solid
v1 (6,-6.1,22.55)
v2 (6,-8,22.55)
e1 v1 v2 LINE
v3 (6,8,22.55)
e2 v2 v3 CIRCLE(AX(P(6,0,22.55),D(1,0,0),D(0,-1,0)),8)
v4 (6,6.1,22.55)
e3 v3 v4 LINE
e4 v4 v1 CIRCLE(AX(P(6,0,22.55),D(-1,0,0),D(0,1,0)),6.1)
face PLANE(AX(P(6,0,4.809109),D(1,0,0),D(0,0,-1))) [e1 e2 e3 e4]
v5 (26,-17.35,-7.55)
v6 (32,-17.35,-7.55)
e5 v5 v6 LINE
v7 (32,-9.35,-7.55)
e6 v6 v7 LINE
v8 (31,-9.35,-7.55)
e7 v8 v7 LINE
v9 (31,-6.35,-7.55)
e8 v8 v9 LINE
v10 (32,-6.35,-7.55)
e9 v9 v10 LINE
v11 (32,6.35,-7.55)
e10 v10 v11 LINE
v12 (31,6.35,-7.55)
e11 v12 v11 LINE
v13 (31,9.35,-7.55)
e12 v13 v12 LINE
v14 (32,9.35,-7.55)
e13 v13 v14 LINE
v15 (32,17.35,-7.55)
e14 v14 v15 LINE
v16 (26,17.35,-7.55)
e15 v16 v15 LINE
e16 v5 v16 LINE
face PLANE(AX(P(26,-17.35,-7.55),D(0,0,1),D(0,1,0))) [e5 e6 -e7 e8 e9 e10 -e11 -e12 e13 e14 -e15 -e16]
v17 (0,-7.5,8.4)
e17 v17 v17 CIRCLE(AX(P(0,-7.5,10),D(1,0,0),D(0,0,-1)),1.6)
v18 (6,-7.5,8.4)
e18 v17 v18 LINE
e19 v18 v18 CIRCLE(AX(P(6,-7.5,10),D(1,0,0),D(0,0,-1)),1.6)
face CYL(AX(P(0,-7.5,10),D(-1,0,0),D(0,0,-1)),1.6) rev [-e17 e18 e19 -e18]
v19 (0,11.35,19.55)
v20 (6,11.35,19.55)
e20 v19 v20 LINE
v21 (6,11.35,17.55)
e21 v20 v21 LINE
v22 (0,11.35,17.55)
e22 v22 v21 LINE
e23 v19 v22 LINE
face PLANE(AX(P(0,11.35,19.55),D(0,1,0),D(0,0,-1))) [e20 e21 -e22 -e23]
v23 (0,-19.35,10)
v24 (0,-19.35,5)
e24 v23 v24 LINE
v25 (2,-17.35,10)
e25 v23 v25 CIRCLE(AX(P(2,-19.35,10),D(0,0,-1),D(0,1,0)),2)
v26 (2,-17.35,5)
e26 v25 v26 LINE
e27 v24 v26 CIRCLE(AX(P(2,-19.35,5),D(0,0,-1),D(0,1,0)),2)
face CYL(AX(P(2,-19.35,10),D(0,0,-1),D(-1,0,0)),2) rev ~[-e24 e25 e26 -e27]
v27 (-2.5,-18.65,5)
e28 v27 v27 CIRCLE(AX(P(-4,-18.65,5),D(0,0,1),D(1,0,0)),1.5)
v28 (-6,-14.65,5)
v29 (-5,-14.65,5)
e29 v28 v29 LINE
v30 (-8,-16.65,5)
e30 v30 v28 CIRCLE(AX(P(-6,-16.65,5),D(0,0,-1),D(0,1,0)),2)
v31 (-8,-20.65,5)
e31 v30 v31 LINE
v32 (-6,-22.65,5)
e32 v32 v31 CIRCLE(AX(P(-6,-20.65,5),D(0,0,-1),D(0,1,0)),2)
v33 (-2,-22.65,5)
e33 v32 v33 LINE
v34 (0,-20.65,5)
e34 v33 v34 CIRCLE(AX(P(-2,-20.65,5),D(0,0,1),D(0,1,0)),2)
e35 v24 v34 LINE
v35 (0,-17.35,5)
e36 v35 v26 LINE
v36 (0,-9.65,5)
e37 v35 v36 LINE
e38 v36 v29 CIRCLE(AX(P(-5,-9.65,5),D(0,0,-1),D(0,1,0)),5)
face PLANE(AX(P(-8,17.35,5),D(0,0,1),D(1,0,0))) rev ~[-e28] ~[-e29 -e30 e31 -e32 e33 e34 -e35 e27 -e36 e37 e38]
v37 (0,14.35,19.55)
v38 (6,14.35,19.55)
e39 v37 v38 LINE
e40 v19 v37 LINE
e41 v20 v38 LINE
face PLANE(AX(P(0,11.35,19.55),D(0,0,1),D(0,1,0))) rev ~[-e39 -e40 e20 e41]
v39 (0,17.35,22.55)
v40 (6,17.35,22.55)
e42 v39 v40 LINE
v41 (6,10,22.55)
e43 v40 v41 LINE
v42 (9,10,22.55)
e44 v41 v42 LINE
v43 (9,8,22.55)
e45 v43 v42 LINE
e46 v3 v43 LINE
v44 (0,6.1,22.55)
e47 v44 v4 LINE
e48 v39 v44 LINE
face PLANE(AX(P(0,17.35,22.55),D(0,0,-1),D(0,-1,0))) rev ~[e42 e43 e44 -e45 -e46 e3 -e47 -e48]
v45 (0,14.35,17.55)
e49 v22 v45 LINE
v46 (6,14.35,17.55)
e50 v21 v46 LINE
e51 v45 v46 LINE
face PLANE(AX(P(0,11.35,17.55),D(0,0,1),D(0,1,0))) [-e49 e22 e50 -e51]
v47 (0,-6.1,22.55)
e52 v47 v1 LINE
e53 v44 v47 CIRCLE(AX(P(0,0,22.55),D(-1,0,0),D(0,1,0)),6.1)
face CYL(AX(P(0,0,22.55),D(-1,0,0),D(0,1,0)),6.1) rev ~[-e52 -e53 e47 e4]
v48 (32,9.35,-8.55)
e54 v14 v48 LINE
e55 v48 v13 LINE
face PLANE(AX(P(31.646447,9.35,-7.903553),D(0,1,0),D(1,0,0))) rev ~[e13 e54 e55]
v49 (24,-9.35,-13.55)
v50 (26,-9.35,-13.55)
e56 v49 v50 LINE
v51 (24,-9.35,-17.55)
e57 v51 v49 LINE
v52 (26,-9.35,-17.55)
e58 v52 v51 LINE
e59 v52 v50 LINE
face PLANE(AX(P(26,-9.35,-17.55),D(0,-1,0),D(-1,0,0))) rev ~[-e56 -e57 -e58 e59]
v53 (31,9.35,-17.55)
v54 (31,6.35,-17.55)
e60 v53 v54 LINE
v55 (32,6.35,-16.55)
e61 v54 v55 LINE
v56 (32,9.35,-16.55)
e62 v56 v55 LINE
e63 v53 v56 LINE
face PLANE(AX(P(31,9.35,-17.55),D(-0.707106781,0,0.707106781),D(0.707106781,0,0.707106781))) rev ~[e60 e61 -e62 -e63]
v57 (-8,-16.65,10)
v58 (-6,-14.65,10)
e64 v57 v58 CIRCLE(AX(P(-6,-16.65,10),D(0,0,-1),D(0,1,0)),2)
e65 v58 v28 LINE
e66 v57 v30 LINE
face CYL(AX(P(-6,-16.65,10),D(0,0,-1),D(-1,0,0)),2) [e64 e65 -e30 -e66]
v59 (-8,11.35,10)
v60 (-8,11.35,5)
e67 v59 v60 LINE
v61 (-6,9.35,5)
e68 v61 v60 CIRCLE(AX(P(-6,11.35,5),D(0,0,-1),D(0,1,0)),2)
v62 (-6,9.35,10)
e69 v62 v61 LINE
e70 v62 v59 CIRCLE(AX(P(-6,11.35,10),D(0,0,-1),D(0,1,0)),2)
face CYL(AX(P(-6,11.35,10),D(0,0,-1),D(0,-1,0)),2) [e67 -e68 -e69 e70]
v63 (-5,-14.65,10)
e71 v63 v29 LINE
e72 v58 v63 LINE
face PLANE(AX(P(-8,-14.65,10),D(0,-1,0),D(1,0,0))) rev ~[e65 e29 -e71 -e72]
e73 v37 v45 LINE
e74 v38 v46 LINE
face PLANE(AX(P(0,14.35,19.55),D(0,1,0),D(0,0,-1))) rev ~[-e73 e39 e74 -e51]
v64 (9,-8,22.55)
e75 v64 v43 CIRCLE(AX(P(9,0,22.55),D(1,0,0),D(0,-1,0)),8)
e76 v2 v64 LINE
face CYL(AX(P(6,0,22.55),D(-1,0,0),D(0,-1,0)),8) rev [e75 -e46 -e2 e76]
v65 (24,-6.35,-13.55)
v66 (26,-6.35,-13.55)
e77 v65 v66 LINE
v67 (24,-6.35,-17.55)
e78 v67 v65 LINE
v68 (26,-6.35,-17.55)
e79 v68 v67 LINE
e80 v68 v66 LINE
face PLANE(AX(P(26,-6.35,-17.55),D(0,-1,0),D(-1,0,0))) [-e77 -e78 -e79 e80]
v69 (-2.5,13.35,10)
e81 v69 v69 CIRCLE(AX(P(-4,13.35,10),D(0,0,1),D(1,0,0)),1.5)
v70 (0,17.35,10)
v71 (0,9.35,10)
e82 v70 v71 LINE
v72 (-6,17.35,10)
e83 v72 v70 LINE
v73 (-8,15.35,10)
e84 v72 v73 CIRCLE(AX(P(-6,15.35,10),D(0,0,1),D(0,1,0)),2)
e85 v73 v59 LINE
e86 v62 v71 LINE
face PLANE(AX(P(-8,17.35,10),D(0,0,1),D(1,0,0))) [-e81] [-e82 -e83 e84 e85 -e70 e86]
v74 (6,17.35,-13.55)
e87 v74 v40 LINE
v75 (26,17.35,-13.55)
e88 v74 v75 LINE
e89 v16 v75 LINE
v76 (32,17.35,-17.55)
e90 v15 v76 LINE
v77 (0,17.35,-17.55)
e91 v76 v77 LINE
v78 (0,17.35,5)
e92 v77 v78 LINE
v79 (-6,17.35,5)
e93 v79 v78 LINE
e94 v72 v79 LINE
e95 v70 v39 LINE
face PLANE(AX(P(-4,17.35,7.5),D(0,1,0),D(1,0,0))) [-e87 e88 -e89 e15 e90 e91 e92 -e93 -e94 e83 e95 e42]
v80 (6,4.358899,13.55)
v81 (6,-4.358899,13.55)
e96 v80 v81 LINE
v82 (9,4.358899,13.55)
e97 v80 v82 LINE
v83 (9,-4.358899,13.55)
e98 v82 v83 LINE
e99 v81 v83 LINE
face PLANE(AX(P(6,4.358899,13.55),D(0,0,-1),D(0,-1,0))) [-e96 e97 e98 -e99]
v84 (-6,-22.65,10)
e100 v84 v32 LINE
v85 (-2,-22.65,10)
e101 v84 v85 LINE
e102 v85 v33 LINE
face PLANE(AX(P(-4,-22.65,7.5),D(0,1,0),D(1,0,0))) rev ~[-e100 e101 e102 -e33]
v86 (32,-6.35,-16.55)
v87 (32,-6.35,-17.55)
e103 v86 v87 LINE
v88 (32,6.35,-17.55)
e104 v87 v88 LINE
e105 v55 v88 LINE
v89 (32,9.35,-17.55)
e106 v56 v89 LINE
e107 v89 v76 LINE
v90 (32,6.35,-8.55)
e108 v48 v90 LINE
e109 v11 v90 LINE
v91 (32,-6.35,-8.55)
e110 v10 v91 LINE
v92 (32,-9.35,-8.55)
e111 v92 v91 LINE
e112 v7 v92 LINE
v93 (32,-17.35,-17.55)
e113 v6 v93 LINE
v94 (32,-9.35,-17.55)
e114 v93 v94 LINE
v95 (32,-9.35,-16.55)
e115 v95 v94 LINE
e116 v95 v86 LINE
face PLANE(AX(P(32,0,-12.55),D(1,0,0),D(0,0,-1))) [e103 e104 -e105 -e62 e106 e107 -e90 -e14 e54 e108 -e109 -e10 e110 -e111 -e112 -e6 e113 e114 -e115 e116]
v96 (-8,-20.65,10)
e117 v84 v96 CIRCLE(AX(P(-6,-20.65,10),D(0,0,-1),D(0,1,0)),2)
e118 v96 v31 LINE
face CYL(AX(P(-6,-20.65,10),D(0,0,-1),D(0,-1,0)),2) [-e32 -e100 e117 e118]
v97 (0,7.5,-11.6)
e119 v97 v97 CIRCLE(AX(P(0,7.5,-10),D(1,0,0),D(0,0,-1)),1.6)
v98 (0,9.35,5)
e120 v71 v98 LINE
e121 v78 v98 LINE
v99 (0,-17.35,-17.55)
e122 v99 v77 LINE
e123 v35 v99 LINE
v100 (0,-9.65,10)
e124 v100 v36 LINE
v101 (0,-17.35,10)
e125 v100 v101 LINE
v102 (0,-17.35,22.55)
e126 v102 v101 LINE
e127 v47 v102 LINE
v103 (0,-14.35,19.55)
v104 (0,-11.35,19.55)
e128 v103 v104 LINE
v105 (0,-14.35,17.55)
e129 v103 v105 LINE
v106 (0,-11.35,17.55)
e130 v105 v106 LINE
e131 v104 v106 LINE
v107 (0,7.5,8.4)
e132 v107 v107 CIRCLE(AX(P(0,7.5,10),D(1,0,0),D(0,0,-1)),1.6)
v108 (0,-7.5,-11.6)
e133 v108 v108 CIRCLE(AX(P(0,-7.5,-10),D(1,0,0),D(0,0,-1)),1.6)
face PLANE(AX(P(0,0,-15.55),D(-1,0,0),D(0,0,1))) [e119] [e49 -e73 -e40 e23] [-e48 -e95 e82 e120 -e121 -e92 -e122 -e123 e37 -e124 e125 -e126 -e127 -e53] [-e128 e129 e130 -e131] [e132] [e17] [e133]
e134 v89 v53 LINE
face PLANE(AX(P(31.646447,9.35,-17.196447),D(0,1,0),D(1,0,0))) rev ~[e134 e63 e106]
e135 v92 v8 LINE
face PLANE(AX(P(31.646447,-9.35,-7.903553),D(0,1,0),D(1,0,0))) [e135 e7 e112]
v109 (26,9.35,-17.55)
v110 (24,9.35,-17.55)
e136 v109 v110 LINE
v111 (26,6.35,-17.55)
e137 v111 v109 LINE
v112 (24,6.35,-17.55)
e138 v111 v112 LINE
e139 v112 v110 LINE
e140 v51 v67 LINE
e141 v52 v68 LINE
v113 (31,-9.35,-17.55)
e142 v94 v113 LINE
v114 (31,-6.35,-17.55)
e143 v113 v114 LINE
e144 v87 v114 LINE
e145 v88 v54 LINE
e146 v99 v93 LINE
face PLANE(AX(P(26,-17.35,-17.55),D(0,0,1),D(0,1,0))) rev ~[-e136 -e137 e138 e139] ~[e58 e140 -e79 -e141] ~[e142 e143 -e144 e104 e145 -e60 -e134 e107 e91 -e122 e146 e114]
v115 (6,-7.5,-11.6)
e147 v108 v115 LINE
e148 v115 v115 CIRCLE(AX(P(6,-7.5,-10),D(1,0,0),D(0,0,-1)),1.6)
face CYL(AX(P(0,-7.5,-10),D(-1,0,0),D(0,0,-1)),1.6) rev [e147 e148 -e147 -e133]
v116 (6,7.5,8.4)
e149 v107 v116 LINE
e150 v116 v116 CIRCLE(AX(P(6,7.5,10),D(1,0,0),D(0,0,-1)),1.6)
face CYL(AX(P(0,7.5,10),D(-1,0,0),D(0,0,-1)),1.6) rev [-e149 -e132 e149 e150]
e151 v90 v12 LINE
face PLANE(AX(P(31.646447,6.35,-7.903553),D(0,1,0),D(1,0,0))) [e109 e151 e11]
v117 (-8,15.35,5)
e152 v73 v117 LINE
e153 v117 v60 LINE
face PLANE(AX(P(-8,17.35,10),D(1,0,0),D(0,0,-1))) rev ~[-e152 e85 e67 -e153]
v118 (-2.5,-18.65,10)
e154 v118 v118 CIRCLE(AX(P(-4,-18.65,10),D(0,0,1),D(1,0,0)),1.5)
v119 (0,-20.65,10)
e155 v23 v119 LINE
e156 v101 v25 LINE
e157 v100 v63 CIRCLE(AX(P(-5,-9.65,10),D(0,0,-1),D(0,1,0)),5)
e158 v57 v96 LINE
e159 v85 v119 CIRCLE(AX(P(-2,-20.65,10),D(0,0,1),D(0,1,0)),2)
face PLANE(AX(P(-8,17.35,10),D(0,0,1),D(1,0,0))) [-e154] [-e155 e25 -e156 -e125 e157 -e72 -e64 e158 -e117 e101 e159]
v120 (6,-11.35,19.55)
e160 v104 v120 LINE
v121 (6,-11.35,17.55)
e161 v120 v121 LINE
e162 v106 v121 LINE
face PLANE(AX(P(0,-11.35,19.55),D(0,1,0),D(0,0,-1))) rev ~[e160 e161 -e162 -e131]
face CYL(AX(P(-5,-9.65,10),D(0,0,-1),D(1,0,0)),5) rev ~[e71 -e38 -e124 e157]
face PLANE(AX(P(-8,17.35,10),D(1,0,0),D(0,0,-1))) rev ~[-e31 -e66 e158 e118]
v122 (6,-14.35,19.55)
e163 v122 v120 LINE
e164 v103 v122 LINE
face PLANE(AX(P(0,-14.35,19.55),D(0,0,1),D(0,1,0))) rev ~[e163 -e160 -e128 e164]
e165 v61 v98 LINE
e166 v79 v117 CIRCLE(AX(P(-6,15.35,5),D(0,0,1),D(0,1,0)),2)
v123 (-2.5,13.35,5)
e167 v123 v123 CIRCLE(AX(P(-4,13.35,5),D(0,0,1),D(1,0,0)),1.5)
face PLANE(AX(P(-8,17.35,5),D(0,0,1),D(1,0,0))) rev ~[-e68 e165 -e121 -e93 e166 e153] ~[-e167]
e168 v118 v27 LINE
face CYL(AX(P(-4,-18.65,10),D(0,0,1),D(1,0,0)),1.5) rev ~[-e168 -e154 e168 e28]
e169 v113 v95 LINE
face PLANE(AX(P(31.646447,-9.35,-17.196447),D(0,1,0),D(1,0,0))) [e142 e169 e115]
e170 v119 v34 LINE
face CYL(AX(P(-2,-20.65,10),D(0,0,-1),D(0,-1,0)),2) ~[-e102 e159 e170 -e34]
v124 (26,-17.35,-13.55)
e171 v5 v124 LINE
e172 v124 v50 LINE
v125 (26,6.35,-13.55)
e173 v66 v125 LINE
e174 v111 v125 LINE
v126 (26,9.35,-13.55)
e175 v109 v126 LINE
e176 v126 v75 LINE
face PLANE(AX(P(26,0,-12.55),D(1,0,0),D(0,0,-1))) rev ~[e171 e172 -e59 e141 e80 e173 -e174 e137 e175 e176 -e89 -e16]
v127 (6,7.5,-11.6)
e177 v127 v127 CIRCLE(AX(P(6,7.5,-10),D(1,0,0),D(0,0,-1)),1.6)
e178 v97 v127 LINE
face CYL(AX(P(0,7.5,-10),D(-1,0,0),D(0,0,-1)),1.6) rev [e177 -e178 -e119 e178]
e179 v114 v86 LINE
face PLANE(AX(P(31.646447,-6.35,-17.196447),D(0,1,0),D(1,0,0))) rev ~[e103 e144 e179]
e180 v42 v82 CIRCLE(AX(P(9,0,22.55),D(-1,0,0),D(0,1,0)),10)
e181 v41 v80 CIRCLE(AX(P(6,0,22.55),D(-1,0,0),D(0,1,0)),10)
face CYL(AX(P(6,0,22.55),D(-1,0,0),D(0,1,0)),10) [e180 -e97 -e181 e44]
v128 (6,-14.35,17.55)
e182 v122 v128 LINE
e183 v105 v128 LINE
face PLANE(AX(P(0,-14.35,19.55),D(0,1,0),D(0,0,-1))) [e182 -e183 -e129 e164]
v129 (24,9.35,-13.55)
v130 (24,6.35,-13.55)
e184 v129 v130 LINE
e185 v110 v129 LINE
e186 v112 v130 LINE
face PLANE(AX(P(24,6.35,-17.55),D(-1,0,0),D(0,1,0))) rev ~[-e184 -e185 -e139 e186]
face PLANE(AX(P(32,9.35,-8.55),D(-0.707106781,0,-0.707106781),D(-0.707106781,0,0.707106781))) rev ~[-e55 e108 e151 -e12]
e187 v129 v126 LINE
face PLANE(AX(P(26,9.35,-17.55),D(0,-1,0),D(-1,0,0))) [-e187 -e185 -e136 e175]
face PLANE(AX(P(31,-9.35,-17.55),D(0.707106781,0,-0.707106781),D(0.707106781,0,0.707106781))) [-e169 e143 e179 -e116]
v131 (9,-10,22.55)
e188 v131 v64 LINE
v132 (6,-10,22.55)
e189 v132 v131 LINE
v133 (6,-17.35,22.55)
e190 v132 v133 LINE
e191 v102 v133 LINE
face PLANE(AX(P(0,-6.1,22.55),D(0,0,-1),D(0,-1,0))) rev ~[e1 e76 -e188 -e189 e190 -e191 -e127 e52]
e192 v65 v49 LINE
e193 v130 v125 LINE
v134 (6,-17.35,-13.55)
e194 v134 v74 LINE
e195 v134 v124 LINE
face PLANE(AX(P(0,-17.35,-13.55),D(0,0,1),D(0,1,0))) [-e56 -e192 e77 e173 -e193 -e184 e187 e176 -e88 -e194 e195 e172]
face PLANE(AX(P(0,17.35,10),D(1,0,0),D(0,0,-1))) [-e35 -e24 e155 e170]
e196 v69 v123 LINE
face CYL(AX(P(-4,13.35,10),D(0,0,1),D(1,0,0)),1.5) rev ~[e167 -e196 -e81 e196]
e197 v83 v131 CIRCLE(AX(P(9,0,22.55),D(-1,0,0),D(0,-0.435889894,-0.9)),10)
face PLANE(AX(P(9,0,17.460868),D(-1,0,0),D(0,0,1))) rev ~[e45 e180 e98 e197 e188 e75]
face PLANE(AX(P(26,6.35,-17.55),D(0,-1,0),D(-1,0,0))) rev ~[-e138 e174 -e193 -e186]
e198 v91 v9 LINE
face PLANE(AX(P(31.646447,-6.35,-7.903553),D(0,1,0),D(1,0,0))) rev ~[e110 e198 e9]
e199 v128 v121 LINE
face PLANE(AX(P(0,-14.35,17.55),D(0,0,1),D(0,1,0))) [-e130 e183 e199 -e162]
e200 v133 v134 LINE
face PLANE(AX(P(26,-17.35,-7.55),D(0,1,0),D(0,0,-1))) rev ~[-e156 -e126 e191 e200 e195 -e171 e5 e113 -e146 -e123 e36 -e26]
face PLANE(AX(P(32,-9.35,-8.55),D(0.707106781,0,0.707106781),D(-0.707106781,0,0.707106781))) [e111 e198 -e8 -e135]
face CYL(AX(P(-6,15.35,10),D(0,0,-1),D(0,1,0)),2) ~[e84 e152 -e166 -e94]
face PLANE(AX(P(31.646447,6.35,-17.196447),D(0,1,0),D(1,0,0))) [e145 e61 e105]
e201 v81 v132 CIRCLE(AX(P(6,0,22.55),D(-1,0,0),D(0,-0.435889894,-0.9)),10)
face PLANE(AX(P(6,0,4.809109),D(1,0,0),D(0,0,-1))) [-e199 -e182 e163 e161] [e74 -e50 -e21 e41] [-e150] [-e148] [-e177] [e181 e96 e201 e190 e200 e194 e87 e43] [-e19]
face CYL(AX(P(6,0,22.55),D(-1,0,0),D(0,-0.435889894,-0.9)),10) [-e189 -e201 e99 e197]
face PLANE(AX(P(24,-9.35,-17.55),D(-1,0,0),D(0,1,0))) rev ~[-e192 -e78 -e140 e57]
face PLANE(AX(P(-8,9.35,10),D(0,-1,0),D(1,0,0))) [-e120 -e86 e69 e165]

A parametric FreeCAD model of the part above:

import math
import FreeCAD as App
import Part
import Sketcher


def edges_at(feature, points):
    """Names of the edges that pass closest to the given points."""
    edges = feature.Shape.Edges
    near = lambda p: min(range(len(edges)), key=lambda i: edges[i].distToShape(Part.Vertex(*p))[0])
    return sorted({f"Edge{near(p) + 1}" for p in points})

doc = App.newDocument("Part")
body = doc.addObject("PartDesign::Body", "Body")

# Sketch on YZ plane
sketch1 = body.newObject("Sketcher::SketchObject", "Sketch")
sketch1.AttachmentSupport = (doc.getObject("YZ_Plane"), [""])
sketch1.MapMode = "FlatFace"
sketch1.addGeometry(Part.LineSegment(App.Vector(17.35, -13.55, 0), App.Vector(17.35, 22.55, 0)), False)
sketch1.addGeometry(Part.LineSegment(App.Vector(17.35, 22.55, 0), App.Vector(6.1, 22.55, 0)), False)
sketch1.addGeometry(Part.ArcOfCircle(Part.Circle(App.Vector(0, 22.55, 0), App.Vector(0, 0, 1), 6.1), math.radians(180), math.radians(360)), False)
sketch1.addGeometry(Part.LineSegment(App.Vector(-6.1, 22.55, 0), App.Vector(-17.35, 22.55, 0)), False)
sketch1.addGeometry(Part.LineSegment(App.Vector(-17.35, 22.55, 0), App.Vector(-17.35, -13.55, 0)), False)
sketch1.addGeometry(Part.LineSegment(App.Vector(-17.35, -13.55, 0), App.Vector(17.35, -13.55, 0)), False)
sketch1.addGeometry(Part.LineSegment(App.Vector(-14.35, 17.55, 0), App.Vector(-14.35, 19.55, 0)), False)
sketch1.addGeometry(Part.LineSegment(App.Vector(-14.35, 19.55, 0), App.Vector(-11.35, 19.55, 0)), False)
sketch1.addGeometry(Part.LineSegment(App.Vector(-11.35, 19.55, 0), App.Vector(-11.35, 17.55, 0)), False)
sketch1.addGeometry(Part.LineSegment(App.Vector(-11.35, 17.55, 0), App.Vector(-14.35, 17.55, 0)), False)
sketch1.addGeometry(Part.Circle(App.Vector(-7.5, 10, 0), App.Vector(0, 0, 1), 1.6), False)
sketch1.addGeometry(Part.Circle(App.Vector(-7.5, -10, 0), App.Vector(0, 0, 1), 1.6), False)
sketch1.addGeometry(Part.LineSegment(App.Vector(11.35, 17.55, 0), App.Vector(11.35, 19.55, 0)), False)
sketch1.addGeometry(Part.LineSegment(App.Vector(11.35, 19.55, 0), App.Vector(14.35, 19.55, 0)), False)
sketch1.addGeometry(Part.LineSegment(App.Vector(14.35, 19.55, 0), App.Vector(14.35, 17.55, 0)), False)
sketch1.addGeometry(Part.LineSegment(App.Vector(14.35, 17.55, 0), App.Vector(11.35, 17.55, 0)), False)
sketch1.addGeometry(Part.Circle(App.Vector(7.5, 10, 0), App.Vector(0, 0, 1), 1.6), False)
sketch1.addGeometry(Part.Circle(App.Vector(7.5, -10, 0), App.Vector(0, 0, 1), 1.6), False)
sketch1.addConstraint(Sketcher.Constraint("Coincident", 0, 2, 1, 1))
sketch1.addConstraint(Sketcher.Constraint("Coincident", 1, 2, 2, 2))
sketch1.addConstraint(Sketcher.Constraint("Coincident", 2, 1, 3, 1))
sketch1.addConstraint(Sketcher.Constraint("Coincident", 3, 2, 4, 1))
sketch1.addConstraint(Sketcher.Constraint("Coincident", 4, 2, 5, 1))
sketch1.addConstraint(Sketcher.Constraint("Coincident", 5, 2, 0, 1))
sketch1.addConstraint(Sketcher.Constraint("Coincident", 6, 2, 7, 1))
sketch1.addConstraint(Sketcher.Constraint("Coincident", 7, 2, 8, 1))
sketch1.addConstraint(Sketcher.Constraint("Coincident", 8, 2, 9, 1))
sketch1.addConstraint(Sketcher.Constraint("Coincident", 9, 2, 6, 1))
sketch1.addConstraint(Sketcher.Constraint("Coincident", 12, 2, 13, 1))
sketch1.addConstraint(Sketcher.Constraint("Coincident", 13, 2, 14, 1))
sketch1.addConstraint(Sketcher.Constraint("Coincident", 14, 2, 15, 1))
sketch1.addConstraint(Sketcher.Constraint("Coincident", 15, 2, 12, 1))
sketch1.addConstraint(Sketcher.Constraint("Vertical", 0))
sketch1.addConstraint(Sketcher.Constraint("Horizontal", 1))
sketch1.addConstraint(Sketcher.Constraint("Horizontal", 3))
sketch1.addConstraint(Sketcher.Constraint("Vertical", 4))
sketch1.addConstraint(Sketcher.Constraint("Horizontal", 5))
sketch1.addConstraint(Sketcher.Constraint("Vertical", 6))
sketch1.addConstraint(Sketcher.Constraint("Horizontal", 7))
sketch1.addConstraint(Sketcher.Constraint("Vertical", 8))
sketch1.addConstraint(Sketcher.Constraint("Horizontal", 9))
sketch1.addConstraint(Sketcher.Constraint("Vertical", 12))
sketch1.addConstraint(Sketcher.Constraint("Horizontal", 13))
sketch1.addConstraint(Sketcher.Constraint("Vertical", 14))
sketch1.addConstraint(Sketcher.Constraint("Horizontal", 15))
sketch1.addConstraint(Sketcher.Constraint("Equal", 10, 11))
sketch1.addConstraint(Sketcher.Constraint("Equal", 11, 16))
sketch1.addConstraint(Sketcher.Constraint("Equal", 16, 17))
sketch1.addConstraint(Sketcher.Constraint("Symmetric", 11, 3, 16, 3, -1, 1))
sketch1.addConstraint(Sketcher.Constraint("Symmetric", 10, 3, 17, 3, -1, 1))
sketch1.addConstraint(Sketcher.Constraint("Symmetric", 10, 3, 16, 3, -2))
sketch1.addConstraint(Sketcher.Constraint("Symmetric", 1, 2, 2, 1, -2))
sketch1.addConstraint(Sketcher.Constraint("Symmetric", 7, 2, 12, 2, -2))
sketch1.addConstraint(Sketcher.Constraint("Symmetric", 9, 2, 14, 2, -2))
sketch1.addConstraint(Sketcher.Constraint("Horizontal", 2, 3, 0, 2))
sketch1.addConstraint(Sketcher.Constraint("Equal", 1, 3))
sketch1.addConstraint(Sketcher.Constraint("Diameter", 10, 3.2))
sketch1.addConstraint(Sketcher.Constraint("Radius", 2, 6.1))
sketch1.addConstraint(Sketcher.Constraint("DistanceX", 7, 1, 7, 2, 3.0))
sketch1.addConstraint(Sketcher.Constraint("DistanceY", 6, 1, 6, 2, 2.0))
sketch1.addConstraint(Sketcher.Constraint("DistanceX", 5, 1, 5, 2, 34.7))
sketch1.addConstraint(Sketcher.Constraint("DistanceY", 0, 1, 0, 2, 36.1))
sketch1.addConstraint(Sketcher.Constraint("DistanceY", -1, 1, 10, 3, 10.0))
sketch1.addConstraint(Sketcher.Constraint("DistanceX", 10, 3, 16, 3, 15.0))
sketch1.addConstraint(Sketcher.Constraint("DistanceX", 3, 2, 6, 2, 3.0))
sketch1.addConstraint(Sketcher.Constraint("DistanceY", 6, 2, 3, 2, 3.0))
sketch1.addConstraint(Sketcher.Constraint("DistanceY", -1, 1, 2, 3, 22.55))
pad1 = body.newObject("PartDesign::Pad", "Pad")
pad1.Profile = sketch1
pad1.Length = 6

# Sketch on YZ plane
sketch2 = body.newObject("Sketcher::SketchObject", "Sketch001")
sketch2.AttachmentSupport = (doc.getObject("YZ_Plane"), [""])
sketch2.MapMode = "FlatFace"
sketch2.AttachmentOffset = App.Placement(App.Vector(0, 0, 6), App.Rotation())
sketch2.addGeometry(Part.LineSegment(App.Vector(-4.358899, 13.55, 0), App.Vector(4.358899, 13.55, 0)), False)
sketch2.addGeometry(Part.ArcOfCircle(Part.Circle(App.Vector(0, 22.55, 0), App.Vector(0, 0, 1), 10), math.radians(-64.158067), math.radians(0)), False)
sketch2.addGeometry(Part.LineSegment(App.Vector(10, 22.55, 0), App.Vector(8, 22.55, 0)), False)
sketch2.addGeometry(Part.ArcOfCircle(Part.Circle(App.Vector(0, 22.55, 0), App.Vector(0, 0, 1), 8), math.radians(180), math.radians(360)), False)
sketch2.addGeometry(Part.LineSegment(App.Vector(-8, 22.55, 0), App.Vector(-10, 22.55, 0)), False)
sketch2.addGeometry(Part.ArcOfCircle(Part.Circle(App.Vector(0, 22.55, 0), App.Vector(0, 0, 1), 10), math.radians(180), math.radians(244.158067)), False)
sketch2.addConstraint(Sketcher.Constraint("Coincident", 0, 2, 1, 1))
sketch2.addConstraint(Sketcher.Constraint("Coincident", 1, 2, 2, 1))
sketch2.addConstraint(Sketcher.Constraint("Coincident", 2, 2, 3, 2))
sketch2.addConstraint(Sketcher.Constraint("Coincident", 3, 1, 4, 1))
sketch2.addConstraint(Sketcher.Constraint("Coincident", 4, 2, 5, 1))
sketch2.addConstraint(Sketcher.Constraint("Coincident", 5, 2, 0, 1))
sketch2.addConstraint(Sketcher.Constraint("Horizontal", 0))
sketch2.addConstraint(Sketcher.Constraint("Horizontal", 2))
sketch2.addConstraint(Sketcher.Constraint("Horizontal", 4))
sketch2.addConstraint(Sketcher.Constraint("Coincident", 3, 3, 1, 3))
sketch2.addConstraint(Sketcher.Constraint("Coincident", 5, 3, 1, 3))
sketch2.addConstraint(Sketcher.Constraint("Equal", 1, 5))
sketch2.addConstraint(Sketcher.Constraint("Symmetric", 2, 2, 3, 1, -2))
sketch2.addConstraint(Sketcher.Constraint("Horizontal", 5, 3, 1, 2))
sketch2.addConstraint(Sketcher.Constraint("Radius", 1, 10.0))
sketch2.addConstraint(Sketcher.Constraint("Radius", 3, 8.0))
sketch2.addConstraint(Sketcher.Constraint("DistanceY", 0, 2, 5, 3, 9.0))
sketch2.addConstraint(Sketcher.Constraint("DistanceY", -1, 1, 1, 3, 22.55))
pad2 = body.newObject("PartDesign::Pad", "Pad001")
pad2.Profile = sketch2
pad2.Length = 3

# Sketch on YZ plane
sketch3 = body.newObject("Sketcher::SketchObject", "Sketch002")
sketch3.AttachmentSupport = (doc.getObject("YZ_Plane"), [""])
sketch3.MapMode = "FlatFace"
sketch3.addGeometry(Part.LineSegment(App.Vector(17.35, -17.55, 0), App.Vector(-17.35, -17.55, 0)), False)
sketch3.addGeometry(Part.LineSegment(App.Vector(-17.35, -17.55, 0), App.Vector(-17.35, -13.55, 0)), False)
sketch3.addGeometry(Part.LineSegment(App.Vector(-17.35, -13.55, 0), App.Vector(17.35, -13.55, 0)), False)
sketch3.addGeometry(Part.LineSegment(App.Vector(17.35, -13.55, 0), App.Vector(17.35, -17.55, 0)), False)
sketch3.addConstraint(Sketcher.Constraint("Coincident", 0, 2, 1, 1))
sketch3.addConstraint(Sketcher.Constraint("Coincident", 1, 2, 2, 1))
sketch3.addConstraint(Sketcher.Constraint("Coincident", 2, 2, 3, 1))
sketch3.addConstraint(Sketcher.Constraint("Coincident", 3, 2, 0, 1))
sketch3.addConstraint(Sketcher.Constraint("Horizontal", 0))
sketch3.addConstraint(Sketcher.Constraint("Vertical", 1))
sketch3.addConstraint(Sketcher.Constraint("Horizontal", 2))
sketch3.addConstraint(Sketcher.Constraint("Vertical", 3))
sketch3.addConstraint(Sketcher.Constraint("DistanceY", 1, 1, 1, 2, 4.0))
sketch3.addConstraint(Sketcher.Constraint("DistanceX", 0, 2, 0, 1, 34.7))
sketch3.addConstraint(Sketcher.Constraint("DistanceX", 0, 2, -1, 1, 17.35))
sketch3.addConstraint(Sketcher.Constraint("DistanceY", 0, 2, -1, 1, 17.55))
pad3 = body.newObject("PartDesign::Pad", "Pad002")
pad3.Profile = sketch3
pad3.Length = 26

# Sketch on YZ plane
sketch4 = body.newObject("Sketcher::SketchObject", "Sketch003")
sketch4.AttachmentSupport = (doc.getObject("YZ_Plane"), [""])
sketch4.MapMode = "FlatFace"
sketch4.AttachmentOffset = App.Placement(App.Vector(0, 0, 26), App.Rotation())
sketch4.addGeometry(Part.LineSegment(App.Vector(17.35, -7.55, 0), App.Vector(-17.35, -7.55, 0)), False)
sketch4.addGeometry(Part.LineSegment(App.Vector(-17.35, -7.55, 0), App.Vector(-17.35, -17.55, 0)), False)
sketch4.addGeometry(Part.LineSegment(App.Vector(-17.35, -17.55, 0), App.Vector(17.35, -17.55, 0)), False)
sketch4.addGeometry(Part.LineSegment(App.Vector(17.35, -17.55, 0), App.Vector(17.35, -7.55, 0)), False)
sketch4.addConstraint(Sketcher.Constraint("Coincident", 0, 2, 1, 1))
sketch4.addConstraint(Sketcher.Constraint("Coincident", 1, 2, 2, 1))
sketch4.addConstraint(Sketcher.Constraint("Coincident", 2, 2, 3, 1))
sketch4.addConstraint(Sketcher.Constraint("Coincident", 3, 2, 0, 1))
sketch4.addConstraint(Sketcher.Constraint("Horizontal", 0))
sketch4.addConstraint(Sketcher.Constraint("Vertical", 1))
sketch4.addConstraint(Sketcher.Constraint("Horizontal", 2))
sketch4.addConstraint(Sketcher.Constraint("Vertical", 3))
sketch4.addConstraint(Sketcher.Constraint("DistanceY", 1, 2, 1, 1, 10.0))
sketch4.addConstraint(Sketcher.Constraint("DistanceX", 0, 2, 0, 1, 34.7))
sketch4.addConstraint(Sketcher.Constraint("DistanceX", 0, 2, -1, 1, 17.35))
sketch4.addConstraint(Sketcher.Constraint("DistanceY", 0, 2, -1, 1, 7.55))
pad4 = body.newObject("PartDesign::Pad", "Pad003")
pad4.Profile = sketch4
pad4.Length = 6

# Sketch on XY plane
sketch5 = body.newObject("Sketcher::SketchObject", "Sketch004")
sketch5.AttachmentSupport = (doc.getObject("XY_Plane"), [""])
sketch5.MapMode = "FlatFace"
sketch5.AttachmentOffset = App.Placement(App.Vector(0, 0, -17.55), App.Rotation())
sketch5.addGeometry(Part.LineSegment(App.Vector(26, 9.35, 0), App.Vector(26, 6.35, 0)), False)
sketch5.addGeometry(Part.LineSegment(App.Vector(26, 6.35, 0), App.Vector(24, 6.35, 0)), False)
sketch5.addGeometry(Part.LineSegment(App.Vector(24, 6.35, 0), App.Vector(24, 9.35, 0)), False)
sketch5.addGeometry(Part.LineSegment(App.Vector(24, 9.35, 0), App.Vector(26, 9.35, 0)), False)
sketch5.addGeometry(Part.LineSegment(App.Vector(26, -6.35, 0), App.Vector(26, -9.35, 0)), False)
sketch5.addGeometry(Part.LineSegment(App.Vector(26, -9.35, 0), App.Vector(24, -9.35, 0)), False)
sketch5.addGeometry(Part.LineSegment(App.Vector(24, -9.35, 0), App.Vector(24, -6.35, 0)), False)
sketch5.addGeometry(Part.LineSegment(App.Vector(24, -6.35, 0), App.Vector(26, -6.35, 0)), False)
sketch5.addConstraint(Sketcher.Constraint("Coincident", 0, 2, 1, 1))
sketch5.addConstraint(Sketcher.Constraint("Coincident", 1, 2, 2, 1))
sketch5.addConstraint(Sketcher.Constraint("Coincident", 2, 2, 3, 1))
sketch5.addConstraint(Sketcher.Constraint("Coincident", 3, 2, 0, 1))
sketch5.addConstraint(Sketcher.Constraint("Coincident", 4, 2, 5, 1))
sketch5.addConstraint(Sketcher.Constraint("Coincident", 5, 2, 6, 1))
sketch5.addConstraint(Sketcher.Constraint("Coincident", 6, 2, 7, 1))
sketch5.addConstraint(Sketcher.Constraint("Coincident", 7, 2, 4, 1))
sketch5.addConstraint(Sketcher.Constraint("Vertical", 0))
sketch5.addConstraint(Sketcher.Constraint("Horizontal", 1))
sketch5.addConstraint(Sketcher.Constraint("Vertical", 2))
sketch5.addConstraint(Sketcher.Constraint("Horizontal", 3))
sketch5.addConstraint(Sketcher.Constraint("Vertical", 4))
sketch5.addConstraint(Sketcher.Constraint("Horizontal", 5))
sketch5.addConstraint(Sketcher.Constraint("Vertical", 6))
sketch5.addConstraint(Sketcher.Constraint("Horizontal", 7))
sketch5.addConstraint(Sketcher.Constraint("Symmetric", 3, 2, 4, 2, -1))
sketch5.addConstraint(Sketcher.Constraint("Symmetric", 1, 2, 6, 2, -1))
sketch5.addConstraint(Sketcher.Constraint("DistanceX", 1, 2, 1, 1, 2.0))
sketch5.addConstraint(Sketcher.Constraint("DistanceY", 0, 2, 0, 1, 3.0))
sketch5.addConstraint(Sketcher.Constraint("DistanceX", -1, 1, 0, 2, 26.0))
sketch5.addConstraint(Sketcher.Constraint("DistanceY", 4, 2, 0, 2, 15.7))
pocket1 = body.newObject("PartDesign::Pocket", "Pocket")
pocket1.Profile = sketch5
pocket1.Length = 6
pocket1.Reversed = True

# Sketch on XZ plane
sketch6 = body.newObject("Sketcher::SketchObject", "Sketch005")
sketch6.AttachmentSupport = (doc.getObject("XZ_Plane"), [""])
sketch6.MapMode = "FlatFace"
sketch6.AttachmentOffset = App.Placement(App.Vector(0, 0, 9.35), App.Rotation())
sketch6.addGeometry(Part.LineSegment(App.Vector(31, -17.55, 0), App.Vector(32, -17.55, 0)), False)
sketch6.addGeometry(Part.LineSegment(App.Vector(32, -17.55, 0), App.Vector(32, -16.55, 0)), False)
sketch6.addGeometry(Part.LineSegment(App.Vector(32, -16.55, 0), App.Vector(31, -17.55, 0)), False)
sketch6.addGeometry(Part.LineSegment(App.Vector(32, -8.55, 0), App.Vector(32, -7.55, 0)), False)
sketch6.addGeometry(Part.LineSegment(App.Vector(32, -7.55, 0), App.Vector(31, -7.55, 0)), False)
sketch6.addGeometry(Part.LineSegment(App.Vector(31, -7.55, 0), App.Vector(32, -8.55, 0)), False)
sketch6.addConstraint(Sketcher.Constraint("Coincident", 0, 2, 1, 1))
sketch6.addConstraint(Sketcher.Constraint("Coincident", 1, 2, 2, 1))
sketch6.addConstraint(Sketcher.Constraint("Coincident", 2, 2, 0, 1))
sketch6.addConstraint(Sketcher.Constraint("Coincident", 3, 2, 4, 1))
sketch6.addConstraint(Sketcher.Constraint("Coincident", 4, 2, 5, 1))
sketch6.addConstraint(Sketcher.Constraint("Coincident", 5, 2, 3, 1))
sketch6.addConstraint(Sketcher.Constraint("Horizontal", 0))
sketch6.addConstraint(Sketcher.Constraint("Vertical", 1))
sketch6.addConstraint(Sketcher.Constraint("Vertical", 3))
sketch6.addConstraint(Sketcher.Constraint("Horizontal", 4))
sketch6.addConstraint(Sketcher.Constraint("Perpendicular", 2, 5))
sketch6.addConstraint(Sketcher.Constraint("Vertical", 1, 2, 3, 2))
sketch6.addConstraint(Sketcher.Constraint("Vertical", 2, 2, 4, 2))
sketch6.addConstraint(Sketcher.Constraint("Equal", 4, 1))
sketch6.addConstraint(Sketcher.Constraint("DistanceX", 0, 1, 0, 2, 1.0))
sketch6.addConstraint(Sketcher.Constraint("DistanceX", -1, 1, 0, 2, 32.0))
sketch6.addConstraint(Sketcher.Constraint("DistanceY", 1, 2, 3, 2, 9.0))
sketch6.addConstraint(Sketcher.Constraint("DistanceY", 0, 2, -1, 1, 17.55))
pocket2 = body.newObject("PartDesign::Pocket", "Pocket001")
pocket2.Profile = sketch6
pocket2.Length = 3

# Sketch on XZ plane
sketch7 = body.newObject("Sketcher::SketchObject", "Sketch006")
sketch7.AttachmentSupport = (doc.getObject("XZ_Plane"), [""])
sketch7.MapMode = "FlatFace"
sketch7.AttachmentOffset = App.Placement(App.Vector(0, 0, -9.35), App.Rotation())
sketch7.addGeometry(Part.LineSegment(App.Vector(32, -17.55, 0), App.Vector(31, -17.55, 0)), False)
sketch7.addGeometry(Part.LineSegment(App.Vector(31, -17.55, 0), App.Vector(32, -16.55, 0)), False)
sketch7.addGeometry(Part.LineSegment(App.Vector(32, -16.55, 0), App.Vector(32, -17.55, 0)), False)
sketch7.addGeometry(Part.LineSegment(App.Vector(32, -7.55, 0), App.Vector(32, -8.55, 0)), False)
sketch7.addGeometry(Part.LineSegment(App.Vector(32, -8.55, 0), App.Vector(31, -7.55, 0)), False)
sketch7.addGeometry(Part.LineSegment(App.Vector(31, -7.55, 0), App.Vector(32, -7.55, 0)), False)
sketch7.addConstraint(Sketcher.Constraint("Coincident", 0, 2, 1, 1))
sketch7.addConstraint(Sketcher.Constraint("Coincident", 1, 2, 2, 1))
sketch7.addConstraint(Sketcher.Constraint("Coincident", 2, 2, 0, 1))
sketch7.addConstraint(Sketcher.Constraint("Coincident", 3, 2, 4, 1))
sketch7.addConstraint(Sketcher.Constraint("Coincident", 4, 2, 5, 1))
sketch7.addConstraint(Sketcher.Constraint("Coincident", 5, 2, 3, 1))
sketch7.addConstraint(Sketcher.Constraint("Horizontal", 0))
sketch7.addConstraint(Sketcher.Constraint("Vertical", 2))
sketch7.addConstraint(Sketcher.Constraint("Vertical", 3))
sketch7.addConstraint(Sketcher.Constraint("Horizontal", 5))
sketch7.addConstraint(Sketcher.Constraint("Perpendicular", 1, 4))
sketch7.addConstraint(Sketcher.Constraint("Vertical", 2, 2, 3, 2))
sketch7.addConstraint(Sketcher.Constraint("Vertical", 0, 2, 4, 2))
sketch7.addConstraint(Sketcher.Constraint("Equal", 5, 2))
sketch7.addConstraint(Sketcher.Constraint("DistanceX", 0, 2, 0, 1, 1.0))
sketch7.addConstraint(Sketcher.Constraint("DistanceX", -1, 1, 0, 2, 31.0))
sketch7.addConstraint(Sketcher.Constraint("DistanceY", 1, 2, 3, 2, 8.0))
sketch7.addConstraint(Sketcher.Constraint("DistanceY", 0, 2, -1, 1, 17.55))
pocket3 = body.newObject("PartDesign::Pocket", "Pocket002")
pocket3.Profile = sketch7
pocket3.Length = 3
pocket3.Reversed = True

# Sketch on XZ plane
sketch8 = body.newObject("Sketcher::SketchObject", "Sketch007")
sketch8.AttachmentSupport = (doc.getObject("XZ_Plane"), [""])
sketch8.MapMode = "FlatFace"
sketch8.AttachmentOffset = App.Placement(App.Vector(0, 0, -17.35), App.Rotation())
sketch8.addGeometry(Part.LineSegment(App.Vector(-8, 5, 0), App.Vector(-8, 10, 0)), False)
sketch8.addGeometry(Part.LineSegment(App.Vector(-8, 10, 0), App.Vector(0, 10, 0)), False)
sketch8.addGeometry(Part.LineSegment(App.Vector(0, 10, 0), App.Vector(0, 5, 0)), False)
sketch8.addGeometry(Part.LineSegment(App.Vector(0, 5, 0), App.Vector(-8, 5, 0)), False)
sketch8.addConstraint(Sketcher.Constraint("Coincident", 0, 2, 1, 1))
sketch8.addConstraint(Sketcher.Constraint("Coincident", 1, 2, 2, 1))
sketch8.addConstraint(Sketcher.Constraint("Coincident", 2, 2, 3, 1))
sketch8.addConstraint(Sketcher.Constraint("Coincident", 3, 2, 0, 1))
sketch8.addConstraint(Sketcher.Constraint("Vertical", 0))
sketch8.addConstraint(Sketcher.Constraint("Horizontal", 1))
sketch8.addConstraint(Sketcher.Constraint("Vertical", 2))
sketch8.addConstraint(Sketcher.Constraint("Horizontal", 3))
sketch8.addConstraint(Sketcher.Constraint("PointOnObject", 1, 2, -2))
sketch8.addConstraint(Sketcher.Constraint("DistanceX", 1, 1, 1, 2, 8.0))
sketch8.addConstraint(Sketcher.Constraint("DistanceY", 0, 1, 0, 2, 5.0))
sketch8.addConstraint(Sketcher.Constraint("DistanceY", -1, 1, 0, 2, 10.0))
pad5 = body.newObject("PartDesign::Pad", "Pad004")
pad5.Profile = sketch8
pad5.Length = 40

# Sketch on XY plane
sketch9 = body.newObject("Sketcher::SketchObject", "Sketch008")
sketch9.AttachmentSupport = (doc.getObject("XY_Plane"), [""])
sketch9.MapMode = "FlatFace"
sketch9.AttachmentOffset = App.Placement(App.Vector(0, 0, 10), App.Rotation())
sketch9.addGeometry(Part.Circle(App.Vector(-4, 13.35, 0), App.Vector(0, 0, 1), 1.5), False)
sketch9.addGeometry(Part.Circle(App.Vector(-4, -18.65, 0), App.Vector(0, 0, 1), 1.5), False)
sketch9.addConstraint(Sketcher.Constraint("Equal", 0, 1))
sketch9.addConstraint(Sketcher.Constraint("Vertical", 0, 3, 1, 3))
sketch9.addConstraint(Sketcher.Constraint("Diameter", 0, 3.0))
sketch9.addConstraint(Sketcher.Constraint("DistanceX", 0, 3, -1, 1, 4.0))
sketch9.addConstraint(Sketcher.Constraint("DistanceY", 1, 3, 0, 3, 32.0))
sketch9.addConstraint(Sketcher.Constraint("DistanceY", -1, 1, 0, 3, 13.35))
pocket4 = body.newObject("PartDesign::Pocket", "Pocket003")
pocket4.Profile = sketch9
pocket4.Length = 10

# Sketch on XY plane
sketch10 = body.newObject("Sketcher::SketchObject", "Sketch009")
sketch10.AttachmentSupport = (doc.getObject("XY_Plane"), [""])
sketch10.MapMode = "FlatFace"
sketch10.AttachmentOffset = App.Placement(App.Vector(0, 0, 10), App.Rotation())
sketch10.addGeometry(Part.LineSegment(App.Vector(-8, 9.35, 0), App.Vector(-8, -14.65, 0)), False)
sketch10.addGeometry(Part.LineSegment(App.Vector(-8, -14.65, 0), App.Vector(0, -14.65, 0)), False)
sketch10.addGeometry(Part.LineSegment(App.Vector(0, -14.65, 0), App.Vector(0, 9.35, 0)), False)
sketch10.addGeometry(Part.LineSegment(App.Vector(0, 9.35, 0), App.Vector(-8, 9.35, 0)), False)
sketch10.addConstraint(Sketcher.Constraint("Coincident", 0, 2, 1, 1))
sketch10.addConstraint(Sketcher.Constraint("Coincident", 1, 2, 2, 1))
sketch10.addConstraint(Sketcher.Constraint("Coincident", 2, 2, 3, 1))
sketch10.addConstraint(Sketcher.Constraint("Coincident", 3, 2, 0, 1))
sketch10.addConstraint(Sketcher.Constraint("Vertical", 0))
sketch10.addConstraint(Sketcher.Constraint("Horizontal", 1))
sketch10.addConstraint(Sketcher.Constraint("Vertical", 2))
sketch10.addConstraint(Sketcher.Constraint("Horizontal", 3))
sketch10.addConstraint(Sketcher.Constraint("PointOnObject", 1, 2, -2))
sketch10.addConstraint(Sketcher.Constraint("DistanceX", 1, 1, 1, 2, 8.0))
sketch10.addConstraint(Sketcher.Constraint("DistanceY", 0, 2, 0, 1, 24.0))
sketch10.addConstraint(Sketcher.Constraint("DistanceY", 0, 2, -1, 1, 14.65))
pocket5 = body.newObject("PartDesign::Pocket", "Pocket004")
pocket5.Profile = sketch10
pocket5.Length = 10
doc.recompute()

fillet = body.newObject("PartDesign::Fillet", "Fillet")
fillet.Base = (pocket5, edges_at(pocket5, [(0, -14.65, 7.5)]))
fillet.Radius = 5
doc.recompute()

fillet2 = body.newObject("PartDesign::Fillet", "Fillet001")
fillet2.Base = (fillet, edges_at(fillet, [(0, -17.35, 7.5)]))
fillet2.Radius = 2
doc.recompute()

fillet3 = body.newObject("PartDesign::Fillet", "Fillet002")
fillet3.Base = (fillet2, edges_at(fillet2, [
    (-8, -22.65, 7.5),
    (-8, 17.35, 7.5),
    (-8, -14.65, 7.5),
    (-8, 9.35, 7.5),
]))
fillet3.Radius = 2
doc.recompute()

fillet4 = body.newObject("PartDesign::Fillet", "Fillet003")
fillet4.Base = (fillet3, edges_at(fillet3, [(0, -22.65, 7.5)]))
fillet4.Radius = 2

doc.recompute()
